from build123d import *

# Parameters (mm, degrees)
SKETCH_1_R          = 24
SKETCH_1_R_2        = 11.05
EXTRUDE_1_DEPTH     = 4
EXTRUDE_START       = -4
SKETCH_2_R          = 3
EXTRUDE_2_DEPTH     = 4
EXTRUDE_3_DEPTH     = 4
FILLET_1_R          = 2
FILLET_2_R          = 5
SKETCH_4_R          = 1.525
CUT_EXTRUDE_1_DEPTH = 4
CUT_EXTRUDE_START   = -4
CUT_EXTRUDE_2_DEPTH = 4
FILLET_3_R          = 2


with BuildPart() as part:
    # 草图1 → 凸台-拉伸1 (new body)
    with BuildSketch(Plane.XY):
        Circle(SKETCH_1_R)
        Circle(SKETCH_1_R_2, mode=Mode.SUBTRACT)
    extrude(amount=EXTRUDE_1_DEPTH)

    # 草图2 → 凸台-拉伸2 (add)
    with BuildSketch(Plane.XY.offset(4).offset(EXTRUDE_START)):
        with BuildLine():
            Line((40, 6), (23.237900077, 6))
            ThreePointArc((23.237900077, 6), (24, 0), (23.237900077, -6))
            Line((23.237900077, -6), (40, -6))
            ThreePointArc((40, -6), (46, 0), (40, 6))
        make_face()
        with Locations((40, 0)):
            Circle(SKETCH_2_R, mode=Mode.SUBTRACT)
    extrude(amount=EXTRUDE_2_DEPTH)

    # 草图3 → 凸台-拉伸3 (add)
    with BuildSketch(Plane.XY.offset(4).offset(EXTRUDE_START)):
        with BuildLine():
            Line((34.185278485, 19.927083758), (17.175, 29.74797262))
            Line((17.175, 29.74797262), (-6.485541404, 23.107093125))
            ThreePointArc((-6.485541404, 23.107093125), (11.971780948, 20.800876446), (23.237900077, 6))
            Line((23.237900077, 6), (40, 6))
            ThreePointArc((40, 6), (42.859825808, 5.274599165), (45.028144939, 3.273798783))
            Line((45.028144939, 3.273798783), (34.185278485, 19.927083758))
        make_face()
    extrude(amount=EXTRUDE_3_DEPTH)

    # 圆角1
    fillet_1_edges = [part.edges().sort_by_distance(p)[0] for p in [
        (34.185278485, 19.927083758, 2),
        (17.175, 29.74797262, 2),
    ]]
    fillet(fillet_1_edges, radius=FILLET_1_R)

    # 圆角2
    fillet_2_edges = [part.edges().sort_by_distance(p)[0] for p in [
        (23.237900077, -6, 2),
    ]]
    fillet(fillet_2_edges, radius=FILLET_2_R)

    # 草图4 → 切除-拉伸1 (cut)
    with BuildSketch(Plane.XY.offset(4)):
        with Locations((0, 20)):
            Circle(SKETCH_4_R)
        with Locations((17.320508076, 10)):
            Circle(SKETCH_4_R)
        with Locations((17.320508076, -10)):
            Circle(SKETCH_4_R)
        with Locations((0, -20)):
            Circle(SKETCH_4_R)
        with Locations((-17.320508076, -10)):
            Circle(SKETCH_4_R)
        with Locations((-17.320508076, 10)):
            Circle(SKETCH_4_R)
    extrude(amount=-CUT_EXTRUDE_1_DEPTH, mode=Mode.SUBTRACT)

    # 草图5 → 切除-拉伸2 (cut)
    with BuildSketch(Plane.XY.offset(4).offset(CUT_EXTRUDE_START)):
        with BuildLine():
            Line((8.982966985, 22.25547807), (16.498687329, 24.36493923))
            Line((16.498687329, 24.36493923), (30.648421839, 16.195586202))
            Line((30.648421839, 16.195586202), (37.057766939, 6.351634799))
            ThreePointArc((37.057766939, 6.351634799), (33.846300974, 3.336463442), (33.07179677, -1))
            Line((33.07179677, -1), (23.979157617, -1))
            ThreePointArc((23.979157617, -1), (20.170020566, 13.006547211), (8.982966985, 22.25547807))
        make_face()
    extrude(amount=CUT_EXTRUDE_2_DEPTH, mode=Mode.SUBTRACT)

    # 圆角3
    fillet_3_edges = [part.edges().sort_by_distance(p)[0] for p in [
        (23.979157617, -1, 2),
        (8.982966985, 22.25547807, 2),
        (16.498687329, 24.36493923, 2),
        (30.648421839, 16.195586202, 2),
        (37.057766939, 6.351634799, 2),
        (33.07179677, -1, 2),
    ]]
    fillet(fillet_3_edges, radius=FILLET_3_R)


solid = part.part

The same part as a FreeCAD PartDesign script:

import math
import FreeCAD as App
import Part
import Sketcher
from FreeCAD import Vector
Q = App.Units.Quantity


def edges_at(feature, points):
    """Names of the edges that pass closest to the given points."""
    edges = feature.Shape.Edges
    near = lambda p: min(range(len(edges)), key=lambda i: edges[i].distToShape(Part.Vertex(*p))[0])
    return sorted({f"Edge{near(p) + 1}" for p in points})

doc = App.newDocument("Part")
body = doc.addObject("PartDesign::Body", "Body")

# Sketch on XY plane
sketch1 = body.newObject("Sketcher::SketchObject", "Sketch")
sketch1.AttachmentSupport = (doc.getObject("XY_Plane"), [""])
sketch1.MapMode = "FlatFace"
sketch1.addGeometry([
    Part.Circle(Vector(0, 0, 0), Vector(0, 0, 1), 24),
    Part.Circle(Vector(0, 0, 0), Vector(0, 0, 1), 11),
], False)
sketch1.addConstraint([
    Sketcher.Constraint("Coincident", 0, 3, -1, 1),
    Sketcher.Constraint("Coincident", 1, 3, -1, 1),
    Sketcher.Constraint("Diameter", 0, 48.0),
    Sketcher.Constraint("Diameter", 1, 22.1),
])
pad1 = body.newObject("PartDesign::Pad", "Pad")
pad1.Profile = sketch1
pad1.Length = 4

# Sketch on XY plane
sketch2 = body.newObject("Sketcher::SketchObject", "Sketch001")
sketch2.AttachmentSupport = (doc.getObject("XY_Plane"), [""])
sketch2.MapMode = "FlatFace"
sketch2.addGeometry([
    Part.LineSegment(Vector(40, 6, 0), Vector(23.2, 6, 0)),  # 0
    Part.ArcOfCircle(Part.Circle(Vector(0, 0, 0), Vector(0, 0, 1), 24), math.radians(-14), math.radians(14)),  # 1
    Part.LineSegment(Vector(23.2, -6, 0), Vector(40, -6, 0)),  # 2
    Part.ArcOfCircle(Part.Circle(Vector(40, 0, 0), Vector(0, 0, 1), 6), math.radians(-90), math.radians(90)),  # 3
    Part.Circle(Vector(40, 0, 0), Vector(0, 0, 1), 3),  # 4
], False)
sketch2.addConstraint([
    Sketcher.Constraint("Coincident", 0, 2, 1, 2),
    Sketcher.Constraint("Coincident", 1, 1, 2, 1),
    Sketcher.Constraint("Tangent", 2, 2, 3, 1),
    Sketcher.Constraint("Tangent", 3, 2, 0, 1),
    Sketcher.Constraint("Horizontal", 0),
    Sketcher.Constraint("Horizontal", 2),
    Sketcher.Constraint("Coincident", 1, 3, -1, 1),
    Sketcher.Constraint("Coincident", 4, 3, 3, 3),
    Sketcher.Constraint("PointOnObject", 3, 3, -1),
    Sketcher.Constraint("Diameter", 4, 6.0),
    Sketcher.Constraint("Radius", 1, 24.0),
    Sketcher.Constraint("Radius", 3, 6.0),
    Sketcher.Constraint("DistanceX", -1, 1, 3, 3, 40.0),
])
pad2 = body.newObject("PartDesign::Pad", "Pad001")
pad2.Profile = sketch2
pad2.Length = 4

# Sketch on XY plane
sketch3 = body.newObject("Sketcher::SketchObject", "Sketch002")
sketch3.AttachmentSupport = (doc.getObject("XY_Plane"), [""])
sketch3.MapMode = "FlatFace"
sketch3.addGeometry([
    Part.LineSegment(Vector(34, 20, 0), Vector(17, 30, 0)),  # 0
    Part.LineSegment(Vector(17, 30, 0), Vector(-6, 23, 0)),  # 1
    Part.ArcOfCircle(Part.Circle(Vector(0, 0, 0), Vector(0, 0, 1), 24), math.radians(14), math.radians(106)),  # 2
    Part.LineSegment(Vector(23, 6, 0), Vector(40, 6, 0)),  # 3
    Part.ArcOfCircle(Part.Circle(Vector(40, 0, 0), Vector(0, 0, 1), 6), math.radians(33), math.radians(90)),  # 4
    Part.LineSegment(Vector(45, 3, 0), Vector(34, 20, 0)),  # 5
], False)
sketch3.addConstraint([
    Sketcher.Constraint("Coincident", 0, 2, 1, 1),
    Sketcher.Constraint("Tangent", 1, 2, 2, 2),
    Sketcher.Constraint("Coincident", 2, 1, 3, 1),
    Sketcher.Constraint("Tangent", 3, 2, 4, 2),
    Sketcher.Constraint("Tangent", 4, 1, 5, 1),
    Sketcher.Constraint("Coincident", 5, 2, 0, 1),
    Sketcher.Constraint("Horizontal", 3),
    Sketcher.Constraint("Coincident", 2, 3, -1, 1),
    Sketcher.Constraint("PointOnObject", 4, 3, -1),
    Sketcher.Constraint("Radius", 2, 24.0),
    Sketcher.Constraint("Radius", 4, 6.0),
    Sketcher.Constraint("Angle", 0, Q("150 deg")),
    Sketcher.Constraint("DistanceX", -1, 1, 4, 3, 40.0),
    Sketcher.Constraint("DistanceX", -1, 1, 0, 2, 17.175),
    Sketcher.Constraint("DistanceY", -1, 1, 4, 1, 3.273799),
    Sketcher.Constraint("DistanceX", 1, 2, -1, 1, 6.485541),
])
pad3 = body.newObject("PartDesign::Pad", "Pad002")
pad3.Profile = sketch3
pad3.Length = 4
doc.recompute()

fillet = body.newObject("PartDesign::Fillet", "Fillet")
fillet.Base = (pad3, edges_at(pad3, [(34.185, 19.927, 2), (17.175, 29.748, 2)]))
fillet.Radius = 2
doc.recompute()

fillet2 = body.newObject("PartDesign::Fillet", "Fillet001")
fillet2.Base = (fillet, edges_at(fillet, [(23.238, -6, 2)]))
fillet2.Radius = 5

# Sketch on XY plane
sketch4 = body.newObject("Sketcher::SketchObject", "Sketch003")
sketch4.AttachmentSupport = (doc.getObject("XY_Plane"), [""])
sketch4.MapMode = "FlatFace"
sketch4.AttachmentOffset = App.Placement(Vector(0, 0, 4), App.Rotation())
sketch4.addGeometry([
    Part.Circle(Vector(0, 20, 0), Vector(0, 0, 1), 1.5),  # 0
    Part.Circle(Vector(17.3, 10, 0), Vector(0, 0, 1), 1.5),  # 1
    Part.Circle(Vector(17.3, -10, 0), Vector(0, 0, 1), 1.5),  # 2
    Part.Circle(Vector(0, -20, 0), Vector(0, 0, 1), 1.5),  # 3
    Part.Circle(Vector(-17.3, -10, 0), Vector(0, 0, 1), 1.5),  # 4
    Part.Circle(Vector(-17.3, 10, 0), Vector(0, 0, 1), 1.5),  # 5
], False)
sketch4.addConstraint([
    Sketcher.Constraint("Equal", 0, 1),
    Sketcher.Constraint("Equal", 1, 2),
    Sketcher.Constraint("Equal", 2, 3),
    Sketcher.Constraint("Equal", 3, 4),
    Sketcher.Constraint("Equal", 4, 5),
    Sketcher.Constraint("Symmetric", 0, 3, 3, 3, -1, 1),
    Sketcher.Constraint("Symmetric", 1, 3, 4, 3, -1, 1),
    Sketcher.Constraint("Symmetric", 2, 3, 5, 3, -1, 1),
    Sketcher.Constraint("Symmetric", 2, 3, 4, 3, -2),
    Sketcher.Constraint("PointOnObject", 0, 3, -2),
    Sketcher.Constraint("Diameter", 0, 3.05),
    Sketcher.Constraint("DistanceY", -1, 1, 0, 3, 20.0),
    Sketcher.Constraint("DistanceY", -1, 1, 1, 3, 10.0),
    Sketcher.Constraint("DistanceX", -1, 1, 1, 3, 17.320508),
])
pocket1 = body.newObject("PartDesign::Pocket", "Pocket")
pocket1.Profile = sketch4
pocket1.Length = 4

# Sketch on XY plane
sketch5 = body.newObject("Sketcher::SketchObject", "Sketch004")
sketch5.AttachmentSupport = (doc.getObject("XY_Plane"), [""])
sketch5.MapMode = "FlatFace"
sketch5.addGeometry([
    Part.LineSegment(Vector(16, 24, 0), Vector(9, 22, 0)),  # 0
    Part.ArcOfCircle(Part.Circle(Vector(0, 0, 0), Vector(0, 0, 1), 24), math.radians(-2), math.radians(68)),  # 1
    Part.LineSegment(Vector(24, -1, 0), Vector(33, -1, 0)),  # 2
    Part.ArcOfCircle(Part.Circle(Vector(40, 0, 0), Vector(0, 0, 1), 7), math.radians(115), math.radians(188)),  # 3
    Part.LineSegment(Vector(37, 6, 0), Vector(31, 16, 0)),  # 4
    Part.LineSegment(Vector(31, 16, 0), Vector(16, 24, 0)),  # 5
], False)
sketch5.addConstraint([
    Sketcher.Constraint("Coincident", 0, 2, 1, 2),
    Sketcher.Constraint("Coincident", 1, 1, 2, 1),
    Sketcher.Constraint("Coincident", 2, 2, 3, 2),
    Sketcher.Constraint("Coincident", 3, 1, 4, 1),
    Sketcher.Constraint("Coincident", 4, 2, 5, 1),
    Sketcher.Constraint("Coincident", 5, 2, 0, 1),
    Sketcher.Constraint("Horizontal", 2),
    Sketcher.Constraint("Coincident", 1, 3, -1, 1),
    Sketcher.Constraint("PointOnObject", 3, 3, -1),
    Sketcher.Constraint("Radius", 1, 24.0),
    Sketcher.Constraint("Radius", 3, 7.0),
    Sketcher.Constraint("Angle", 5, Q("150 deg")),
    Sketcher.Constraint("DistanceX", -1, 1, 3, 3, 40.0),
    Sketcher.Constraint("DistanceY", 1, 1, -1, 1, 1.0),
    Sketcher.Constraint("DistanceX", 0, 2, 3, 1, 28.0748),
    Sketcher.Constraint("Distance", 4, 11.74662),
    Sketcher.Constraint("DistanceY", -1, 1, 0, 2, 22.255478),
    Sketcher.Constraint("DistanceX", -1, 1, 4, 2, 30.648422),
    Sketcher.Constraint("DistanceY", -1, 1, 5, 2, 24.364939),
])
pocket2 = body.newObject("PartDesign::Pocket", "Pocket001")
pocket2.Profile = sketch5
pocket2.Length = 4
pocket2.Reversed = True
doc.recompute()

fillet3 = body.newObject("PartDesign::Fillet", "Fillet002")
fillet3.Base = (pocket2, edges_at(pocket2, [
    (23.979, -1, 2),
    (8.983, 22.255, 2),
    (16.499, 24.365, 2),
    (30.648, 16.196, 2),
    (37.058, 6.352, 2),
    (33.072, -1, 2),
]))
fillet3.Radius = 2

doc.recompute()
